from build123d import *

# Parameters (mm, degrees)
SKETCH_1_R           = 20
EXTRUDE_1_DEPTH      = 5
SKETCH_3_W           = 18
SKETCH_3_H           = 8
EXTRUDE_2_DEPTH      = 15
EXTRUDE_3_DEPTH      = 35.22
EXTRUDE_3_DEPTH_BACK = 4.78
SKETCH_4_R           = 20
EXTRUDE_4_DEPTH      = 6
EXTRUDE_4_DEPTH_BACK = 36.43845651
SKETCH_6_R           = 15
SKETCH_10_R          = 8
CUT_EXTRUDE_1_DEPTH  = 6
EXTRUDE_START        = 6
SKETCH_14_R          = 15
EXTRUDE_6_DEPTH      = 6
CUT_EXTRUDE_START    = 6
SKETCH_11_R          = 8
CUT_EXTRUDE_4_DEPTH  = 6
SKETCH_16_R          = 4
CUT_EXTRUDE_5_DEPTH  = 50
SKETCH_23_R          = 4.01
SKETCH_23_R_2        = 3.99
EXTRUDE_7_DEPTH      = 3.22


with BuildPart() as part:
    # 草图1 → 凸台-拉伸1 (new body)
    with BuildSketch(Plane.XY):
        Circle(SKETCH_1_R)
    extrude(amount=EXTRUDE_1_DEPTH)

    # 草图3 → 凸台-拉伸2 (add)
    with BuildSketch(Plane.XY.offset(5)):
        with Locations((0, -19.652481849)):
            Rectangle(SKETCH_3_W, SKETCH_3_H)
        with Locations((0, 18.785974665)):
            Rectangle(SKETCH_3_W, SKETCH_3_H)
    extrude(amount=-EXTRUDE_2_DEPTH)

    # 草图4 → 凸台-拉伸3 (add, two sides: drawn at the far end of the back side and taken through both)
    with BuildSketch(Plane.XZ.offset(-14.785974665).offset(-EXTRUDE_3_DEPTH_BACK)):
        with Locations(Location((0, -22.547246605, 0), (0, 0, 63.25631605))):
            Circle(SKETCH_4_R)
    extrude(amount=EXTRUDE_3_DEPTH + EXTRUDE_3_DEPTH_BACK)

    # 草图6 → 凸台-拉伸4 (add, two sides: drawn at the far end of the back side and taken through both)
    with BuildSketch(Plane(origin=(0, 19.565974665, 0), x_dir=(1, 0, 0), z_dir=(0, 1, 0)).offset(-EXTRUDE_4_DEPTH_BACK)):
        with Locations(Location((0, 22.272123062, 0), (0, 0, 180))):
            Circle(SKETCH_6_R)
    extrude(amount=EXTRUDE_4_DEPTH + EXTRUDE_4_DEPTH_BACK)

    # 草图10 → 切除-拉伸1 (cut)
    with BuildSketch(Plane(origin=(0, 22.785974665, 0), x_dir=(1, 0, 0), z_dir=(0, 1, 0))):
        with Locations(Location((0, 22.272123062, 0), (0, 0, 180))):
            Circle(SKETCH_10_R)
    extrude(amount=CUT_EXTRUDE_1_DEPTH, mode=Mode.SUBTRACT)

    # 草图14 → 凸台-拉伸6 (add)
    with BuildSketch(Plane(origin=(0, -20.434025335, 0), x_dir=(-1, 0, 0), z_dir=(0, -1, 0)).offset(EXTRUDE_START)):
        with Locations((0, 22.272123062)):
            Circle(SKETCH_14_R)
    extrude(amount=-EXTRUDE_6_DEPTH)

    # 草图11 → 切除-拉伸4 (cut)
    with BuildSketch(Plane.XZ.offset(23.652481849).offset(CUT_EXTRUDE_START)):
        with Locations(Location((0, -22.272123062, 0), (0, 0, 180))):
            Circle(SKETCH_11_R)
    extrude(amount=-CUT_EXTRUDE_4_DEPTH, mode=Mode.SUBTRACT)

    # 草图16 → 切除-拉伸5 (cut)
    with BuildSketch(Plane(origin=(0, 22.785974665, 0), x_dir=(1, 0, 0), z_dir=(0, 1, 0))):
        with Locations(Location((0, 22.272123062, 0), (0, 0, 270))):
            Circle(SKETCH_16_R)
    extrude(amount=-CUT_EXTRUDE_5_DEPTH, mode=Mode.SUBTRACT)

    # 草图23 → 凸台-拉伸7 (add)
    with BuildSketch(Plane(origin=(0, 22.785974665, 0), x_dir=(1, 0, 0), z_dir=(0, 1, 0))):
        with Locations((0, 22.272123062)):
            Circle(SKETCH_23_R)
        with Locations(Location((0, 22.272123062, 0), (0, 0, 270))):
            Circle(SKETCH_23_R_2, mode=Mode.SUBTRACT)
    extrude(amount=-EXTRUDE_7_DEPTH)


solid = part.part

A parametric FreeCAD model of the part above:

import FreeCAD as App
import Part
import Sketcher

V = App.Vector

doc = App.newDocument("Part")
body = doc.addObject("PartDesign::Body", "Body")

sketch1 = body.newObject("Sketcher::SketchObject", "Sketch")
sketch1.AttachmentSupport = (doc.getObject("XY_Plane"), [""])
sketch1.MapMode = "FlatFace"
sketch1.addGeometry(Part.Circle(V(0, 0, 0), V(0, 0, 1), 20), False)
sketch1.addConstraint(Sketcher.Constraint("Coincident", 0, 3, -1, 1))
sketch1.addConstraint(Sketcher.Constraint("Diameter", 0, 40.0))
pad1 = body.newObject("PartDesign::Pad", "Pad")
pad1.Profile = sketch1
pad1.Length = 5

sketch2 = body.newObject("Sketcher::SketchObject", "Sketch001")
sketch2.AttachmentSupport = (doc.getObject("XY_Plane"), [""])
sketch2.MapMode = "FlatFace"
sketch2.AttachmentOffset = App.Placement(V(0, 0, 5), App.Rotation())
sketch2.addGeometry(Part.LineSegment(V(-9, -16, 0), V(-9, -24, 0)), False)
sketch2.addGeometry(Part.LineSegment(V(-9, -24, 0), V(9, -24, 0)), False)
sketch2.addGeometry(Part.LineSegment(V(9, -24, 0), V(9, -16, 0)), False)
sketch2.addGeometry(Part.LineSegment(V(9, -16, 0), V(-9, -16, 0)), False)
sketch2.addGeometry(Part.LineSegment(V(-9, 23, 0), V(-9, 15, 0)), False)
sketch2.addGeometry(Part.LineSegment(V(-9, 15, 0), V(9, 15, 0)), False)
sketch2.addGeometry(Part.LineSegment(V(9, 15, 0), V(9, 23, 0)), False)
sketch2.addGeometry(Part.LineSegment(V(9, 23, 0), V(-9, 23, 0)), False)
sketch2.addConstraint(Sketcher.Constraint("Coincident", 0, 2, 1, 1))
sketch2.addConstraint(Sketcher.Constraint("Coincident", 1, 2, 2, 1))
sketch2.addConstraint(Sketcher.Constraint("Coincident", 2, 2, 3, 1))
sketch2.addConstraint(Sketcher.Constraint("Coincident", 3, 2, 0, 1))
sketch2.addConstraint(Sketcher.Constraint("Coincident", 4, 2, 5, 1))
sketch2.addConstraint(Sketcher.Constraint("Coincident", 5, 2, 6, 1))
sketch2.addConstraint(Sketcher.Constraint("Coincident", 6, 2, 7, 1))
sketch2.addConstraint(Sketcher.Constraint("Coincident", 7, 2, 4, 1))
sketch2.addConstraint(Sketcher.Constraint("Vertical", 0))
sketch2.addConstraint(Sketcher.Constraint("Horizontal", 1))
sketch2.addConstraint(Sketcher.Constraint("Vertical", 2))
sketch2.addConstraint(Sketcher.Constraint("Horizontal", 3))
sketch2.addConstraint(Sketcher.Constraint("Vertical", 4))
sketch2.addConstraint(Sketcher.Constraint("Horizontal", 5))
sketch2.addConstraint(Sketcher.Constraint("Vertical", 6))
sketch2.addConstraint(Sketcher.Constraint("Horizontal", 7))
sketch2.addConstraint(Sketcher.Constraint("Vertical", 3, 2, 4, 2))
sketch2.addConstraint(Sketcher.Constraint("Vertical", 2, 2, 5, 2))
sketch2.addConstraint(Sketcher.Constraint("Equal", 2, 4))
sketch2.addConstraint(Sketcher.Constraint("DistanceX", 1, 1, 1, 2, 18.0))
sketch2.addConstraint(Sketcher.Constraint("DistanceY", 0, 2, 0, 1, 8.0))
sketch2.addConstraint(Sketcher.Constraint("DistanceX", 0, 2, -1, 1, 9.0))
sketch2.addConstraint(Sketcher.Constraint("DistanceY", 0, 2, -1, 1, 23.652482))
sketch2.addConstraint(Sketcher.Constraint("DistanceY", -1, 1, 4, 2, 14.785975))
pad2 = body.newObject("PartDesign::Pad", "Pad001")
pad2.Profile = sketch2
pad2.Length = 15
pad2.Reversed = True

sketch3 = body.newObject("Sketcher::SketchObject", "Sketch002")
sketch3.AttachmentSupport = (doc.getObject("XZ_Plane"), [""])
sketch3.MapMode = "FlatFace"
sketch3.AttachmentOffset = App.Placement(V(0, 0, -14.785975), App.Rotation())
sketch3.addGeometry(Part.Circle(V(0, -23, 0), V(0, 0, 1), 20), False)
sketch3.addConstraint(Sketcher.Constraint("PointOnObject", 0, 3, -2))
sketch3.addConstraint(Sketcher.Constraint("Diameter", 0, 40.0))
sketch3.addConstraint(Sketcher.Constraint("DistanceY", 0, 3, -1, 1, 22.547247))
pad3 = body.newObject("PartDesign::Pad", "Pad002")
pad3.Profile = sketch3
pad3.Type = "TwoLengths"
pad3.Length = 35.22
pad3.Length2 = 4.78

sketch4 = body.newObject("Sketcher::SketchObject", "Sketch003")
sketch4.AttachmentSupport = (doc.getObject("XZ_Plane"), [""])
sketch4.MapMode = "FlatFace"
sketch4.AttachmentOffset = App.Placement(V(0, 0, -19.565975), App.Rotation())
sketch4.addGeometry(Part.Circle(V(0, -22, 0), V(0, 0, 1), 15), False)
sketch4.addConstraint(Sketcher.Constraint("PointOnObject", 0, 3, -2))
sketch4.addConstraint(Sketcher.Constraint("Diameter", 0, 30.0))
sketch4.addConstraint(Sketcher.Constraint("DistanceY", 0, 3, -1, 1, 22.272123))
pad4 = body.newObject("PartDesign::Pad", "Pad003")
pad4.Profile = sketch4
pad4.Type = "TwoLengths"
pad4.Length = 6
pad4.Length2 = 36.438457
pad4.Reversed = True

sketch5 = body.newObject("Sketcher::SketchObject", "Sketch004")
sketch5.AttachmentSupport = (doc.getObject("XZ_Plane"), [""])
sketch5.MapMode = "FlatFace"
sketch5.AttachmentOffset = App.Placement(V(0, 0, -22.785975), App.Rotation())
sketch5.addGeometry(Part.Circle(V(0, -22, 0), V(0, 0, 1), 8), False)
sketch5.addConstraint(Sketcher.Constraint("PointOnObject", 0, 3, -2))
sketch5.addConstraint(Sketcher.Constraint("Diameter", 0, 16.0))
sketch5.addConstraint(Sketcher.Constraint("DistanceY", 0, 3, -1, 1, 22.272123))
pocket1 = body.newObject("PartDesign::Pocket", "Pocket")
pocket1.Profile = sketch5
pocket1.Length = 6

sketch6 = body.newObject("Sketcher::SketchObject", "Sketch005")
sketch6.AttachmentSupport = (doc.getObject("XZ_Plane"), [""])
sketch6.MapMode = "FlatFace"
sketch6.AttachmentOffset = App.Placement(V(0, 0, 26.434025), App.Rotation())
sketch6.addGeometry(Part.Circle(V(0, -22, 0), V(0, 0, 1), 15), False)
sketch6.addConstraint(Sketcher.Constraint("PointOnObject", 0, 3, -2))
sketch6.addConstraint(Sketcher.Constraint("Diameter", 0, 30.0))
sketch6.addConstraint(Sketcher.Constraint("DistanceY", 0, 3, -1, 1, 22.272123))
pad5 = body.newObject("PartDesign::Pad", "Pad004")
pad5.Profile = sketch6
pad5.Length = 6
pad5.Reversed = True

sketch7 = body.newObject("Sketcher::SketchObject", "Sketch006")
sketch7.AttachmentSupport = (doc.getObject("XZ_Plane"), [""])
sketch7.MapMode = "FlatFace"
sketch7.AttachmentOffset = App.Placement(V(0, 0, 29.652482), App.Rotation())
sketch7.addGeometry(Part.Circle(V(0, -22, 0), V(0, 0, 1), 8), False)
sketch7.addConstraint(Sketcher.Constraint("PointOnObject", 0, 3, -2))
sketch7.addConstraint(Sketcher.Constraint("Diameter", 0, 16.0))
sketch7.addConstraint(Sketcher.Constraint("DistanceY", 0, 3, -1, 1, 22.272123))
pocket2 = body.newObject("PartDesign::Pocket", "Pocket001")
pocket2.Profile = sketch7
pocket2.Length = 6

sketch8 = body.newObject("Sketcher::SketchObject", "Sketch007")
sketch8.AttachmentSupport = (doc.getObject("XZ_Plane"), [""])
sketch8.MapMode = "FlatFace"
sketch8.AttachmentOffset = App.Placement(V(0, 0, -22.785975), App.Rotation())
sketch8.addGeometry(Part.Circle(V(0, -22.3, 0), V(0, 0, 1), 4), False)
sketch8.addConstraint(Sketcher.Constraint("PointOnObject", 0, 3, -2))
sketch8.addConstraint(Sketcher.Constraint("Diameter", 0, 8.0))
sketch8.addConstraint(Sketcher.Constraint("DistanceY", 0, 3, -1, 1, 22.272123))
pocket3 = body.newObject("PartDesign::Pocket", "Pocket002")
pocket3.Profile = sketch8
pocket3.Length = 50
pocket3.Reversed = True

sketch9 = body.newObject("Sketcher::SketchObject", "Sketch008")
sketch9.AttachmentSupport = (doc.getObject("XZ_Plane"), [""])
sketch9.MapMode = "FlatFace"
sketch9.AttachmentOffset = App.Placement(V(0, 0, -22.785975), App.Rotation())
sketch9.addGeometry(Part.Circle(V(0, -22.3, 0), V(0, 0, 1), 4), False)
sketch9.addGeometry(Part.Circle(V(0, -22.3, 0), V(0, 0, 1), 4), False)
sketch9.addConstraint(Sketcher.Constraint("Coincident", 1, 3, 0, 3))
sketch9.addConstraint(Sketcher.Constraint("PointOnObject", 0, 3, -2))
sketch9.addConstraint(Sketcher.Constraint("Diameter", 0, 8.02))
sketch9.addConstraint(Sketcher.Constraint("Diameter", 1, 7.98))
sketch9.addConstraint(Sketcher.Constraint("DistanceY", 0, 3, -1, 1, 22.272123))
pad6 = body.newObject("PartDesign::Pad", "Pad005")
pad6.Profile = sketch9
pad6.Length = 3.22

doc.recompute()
